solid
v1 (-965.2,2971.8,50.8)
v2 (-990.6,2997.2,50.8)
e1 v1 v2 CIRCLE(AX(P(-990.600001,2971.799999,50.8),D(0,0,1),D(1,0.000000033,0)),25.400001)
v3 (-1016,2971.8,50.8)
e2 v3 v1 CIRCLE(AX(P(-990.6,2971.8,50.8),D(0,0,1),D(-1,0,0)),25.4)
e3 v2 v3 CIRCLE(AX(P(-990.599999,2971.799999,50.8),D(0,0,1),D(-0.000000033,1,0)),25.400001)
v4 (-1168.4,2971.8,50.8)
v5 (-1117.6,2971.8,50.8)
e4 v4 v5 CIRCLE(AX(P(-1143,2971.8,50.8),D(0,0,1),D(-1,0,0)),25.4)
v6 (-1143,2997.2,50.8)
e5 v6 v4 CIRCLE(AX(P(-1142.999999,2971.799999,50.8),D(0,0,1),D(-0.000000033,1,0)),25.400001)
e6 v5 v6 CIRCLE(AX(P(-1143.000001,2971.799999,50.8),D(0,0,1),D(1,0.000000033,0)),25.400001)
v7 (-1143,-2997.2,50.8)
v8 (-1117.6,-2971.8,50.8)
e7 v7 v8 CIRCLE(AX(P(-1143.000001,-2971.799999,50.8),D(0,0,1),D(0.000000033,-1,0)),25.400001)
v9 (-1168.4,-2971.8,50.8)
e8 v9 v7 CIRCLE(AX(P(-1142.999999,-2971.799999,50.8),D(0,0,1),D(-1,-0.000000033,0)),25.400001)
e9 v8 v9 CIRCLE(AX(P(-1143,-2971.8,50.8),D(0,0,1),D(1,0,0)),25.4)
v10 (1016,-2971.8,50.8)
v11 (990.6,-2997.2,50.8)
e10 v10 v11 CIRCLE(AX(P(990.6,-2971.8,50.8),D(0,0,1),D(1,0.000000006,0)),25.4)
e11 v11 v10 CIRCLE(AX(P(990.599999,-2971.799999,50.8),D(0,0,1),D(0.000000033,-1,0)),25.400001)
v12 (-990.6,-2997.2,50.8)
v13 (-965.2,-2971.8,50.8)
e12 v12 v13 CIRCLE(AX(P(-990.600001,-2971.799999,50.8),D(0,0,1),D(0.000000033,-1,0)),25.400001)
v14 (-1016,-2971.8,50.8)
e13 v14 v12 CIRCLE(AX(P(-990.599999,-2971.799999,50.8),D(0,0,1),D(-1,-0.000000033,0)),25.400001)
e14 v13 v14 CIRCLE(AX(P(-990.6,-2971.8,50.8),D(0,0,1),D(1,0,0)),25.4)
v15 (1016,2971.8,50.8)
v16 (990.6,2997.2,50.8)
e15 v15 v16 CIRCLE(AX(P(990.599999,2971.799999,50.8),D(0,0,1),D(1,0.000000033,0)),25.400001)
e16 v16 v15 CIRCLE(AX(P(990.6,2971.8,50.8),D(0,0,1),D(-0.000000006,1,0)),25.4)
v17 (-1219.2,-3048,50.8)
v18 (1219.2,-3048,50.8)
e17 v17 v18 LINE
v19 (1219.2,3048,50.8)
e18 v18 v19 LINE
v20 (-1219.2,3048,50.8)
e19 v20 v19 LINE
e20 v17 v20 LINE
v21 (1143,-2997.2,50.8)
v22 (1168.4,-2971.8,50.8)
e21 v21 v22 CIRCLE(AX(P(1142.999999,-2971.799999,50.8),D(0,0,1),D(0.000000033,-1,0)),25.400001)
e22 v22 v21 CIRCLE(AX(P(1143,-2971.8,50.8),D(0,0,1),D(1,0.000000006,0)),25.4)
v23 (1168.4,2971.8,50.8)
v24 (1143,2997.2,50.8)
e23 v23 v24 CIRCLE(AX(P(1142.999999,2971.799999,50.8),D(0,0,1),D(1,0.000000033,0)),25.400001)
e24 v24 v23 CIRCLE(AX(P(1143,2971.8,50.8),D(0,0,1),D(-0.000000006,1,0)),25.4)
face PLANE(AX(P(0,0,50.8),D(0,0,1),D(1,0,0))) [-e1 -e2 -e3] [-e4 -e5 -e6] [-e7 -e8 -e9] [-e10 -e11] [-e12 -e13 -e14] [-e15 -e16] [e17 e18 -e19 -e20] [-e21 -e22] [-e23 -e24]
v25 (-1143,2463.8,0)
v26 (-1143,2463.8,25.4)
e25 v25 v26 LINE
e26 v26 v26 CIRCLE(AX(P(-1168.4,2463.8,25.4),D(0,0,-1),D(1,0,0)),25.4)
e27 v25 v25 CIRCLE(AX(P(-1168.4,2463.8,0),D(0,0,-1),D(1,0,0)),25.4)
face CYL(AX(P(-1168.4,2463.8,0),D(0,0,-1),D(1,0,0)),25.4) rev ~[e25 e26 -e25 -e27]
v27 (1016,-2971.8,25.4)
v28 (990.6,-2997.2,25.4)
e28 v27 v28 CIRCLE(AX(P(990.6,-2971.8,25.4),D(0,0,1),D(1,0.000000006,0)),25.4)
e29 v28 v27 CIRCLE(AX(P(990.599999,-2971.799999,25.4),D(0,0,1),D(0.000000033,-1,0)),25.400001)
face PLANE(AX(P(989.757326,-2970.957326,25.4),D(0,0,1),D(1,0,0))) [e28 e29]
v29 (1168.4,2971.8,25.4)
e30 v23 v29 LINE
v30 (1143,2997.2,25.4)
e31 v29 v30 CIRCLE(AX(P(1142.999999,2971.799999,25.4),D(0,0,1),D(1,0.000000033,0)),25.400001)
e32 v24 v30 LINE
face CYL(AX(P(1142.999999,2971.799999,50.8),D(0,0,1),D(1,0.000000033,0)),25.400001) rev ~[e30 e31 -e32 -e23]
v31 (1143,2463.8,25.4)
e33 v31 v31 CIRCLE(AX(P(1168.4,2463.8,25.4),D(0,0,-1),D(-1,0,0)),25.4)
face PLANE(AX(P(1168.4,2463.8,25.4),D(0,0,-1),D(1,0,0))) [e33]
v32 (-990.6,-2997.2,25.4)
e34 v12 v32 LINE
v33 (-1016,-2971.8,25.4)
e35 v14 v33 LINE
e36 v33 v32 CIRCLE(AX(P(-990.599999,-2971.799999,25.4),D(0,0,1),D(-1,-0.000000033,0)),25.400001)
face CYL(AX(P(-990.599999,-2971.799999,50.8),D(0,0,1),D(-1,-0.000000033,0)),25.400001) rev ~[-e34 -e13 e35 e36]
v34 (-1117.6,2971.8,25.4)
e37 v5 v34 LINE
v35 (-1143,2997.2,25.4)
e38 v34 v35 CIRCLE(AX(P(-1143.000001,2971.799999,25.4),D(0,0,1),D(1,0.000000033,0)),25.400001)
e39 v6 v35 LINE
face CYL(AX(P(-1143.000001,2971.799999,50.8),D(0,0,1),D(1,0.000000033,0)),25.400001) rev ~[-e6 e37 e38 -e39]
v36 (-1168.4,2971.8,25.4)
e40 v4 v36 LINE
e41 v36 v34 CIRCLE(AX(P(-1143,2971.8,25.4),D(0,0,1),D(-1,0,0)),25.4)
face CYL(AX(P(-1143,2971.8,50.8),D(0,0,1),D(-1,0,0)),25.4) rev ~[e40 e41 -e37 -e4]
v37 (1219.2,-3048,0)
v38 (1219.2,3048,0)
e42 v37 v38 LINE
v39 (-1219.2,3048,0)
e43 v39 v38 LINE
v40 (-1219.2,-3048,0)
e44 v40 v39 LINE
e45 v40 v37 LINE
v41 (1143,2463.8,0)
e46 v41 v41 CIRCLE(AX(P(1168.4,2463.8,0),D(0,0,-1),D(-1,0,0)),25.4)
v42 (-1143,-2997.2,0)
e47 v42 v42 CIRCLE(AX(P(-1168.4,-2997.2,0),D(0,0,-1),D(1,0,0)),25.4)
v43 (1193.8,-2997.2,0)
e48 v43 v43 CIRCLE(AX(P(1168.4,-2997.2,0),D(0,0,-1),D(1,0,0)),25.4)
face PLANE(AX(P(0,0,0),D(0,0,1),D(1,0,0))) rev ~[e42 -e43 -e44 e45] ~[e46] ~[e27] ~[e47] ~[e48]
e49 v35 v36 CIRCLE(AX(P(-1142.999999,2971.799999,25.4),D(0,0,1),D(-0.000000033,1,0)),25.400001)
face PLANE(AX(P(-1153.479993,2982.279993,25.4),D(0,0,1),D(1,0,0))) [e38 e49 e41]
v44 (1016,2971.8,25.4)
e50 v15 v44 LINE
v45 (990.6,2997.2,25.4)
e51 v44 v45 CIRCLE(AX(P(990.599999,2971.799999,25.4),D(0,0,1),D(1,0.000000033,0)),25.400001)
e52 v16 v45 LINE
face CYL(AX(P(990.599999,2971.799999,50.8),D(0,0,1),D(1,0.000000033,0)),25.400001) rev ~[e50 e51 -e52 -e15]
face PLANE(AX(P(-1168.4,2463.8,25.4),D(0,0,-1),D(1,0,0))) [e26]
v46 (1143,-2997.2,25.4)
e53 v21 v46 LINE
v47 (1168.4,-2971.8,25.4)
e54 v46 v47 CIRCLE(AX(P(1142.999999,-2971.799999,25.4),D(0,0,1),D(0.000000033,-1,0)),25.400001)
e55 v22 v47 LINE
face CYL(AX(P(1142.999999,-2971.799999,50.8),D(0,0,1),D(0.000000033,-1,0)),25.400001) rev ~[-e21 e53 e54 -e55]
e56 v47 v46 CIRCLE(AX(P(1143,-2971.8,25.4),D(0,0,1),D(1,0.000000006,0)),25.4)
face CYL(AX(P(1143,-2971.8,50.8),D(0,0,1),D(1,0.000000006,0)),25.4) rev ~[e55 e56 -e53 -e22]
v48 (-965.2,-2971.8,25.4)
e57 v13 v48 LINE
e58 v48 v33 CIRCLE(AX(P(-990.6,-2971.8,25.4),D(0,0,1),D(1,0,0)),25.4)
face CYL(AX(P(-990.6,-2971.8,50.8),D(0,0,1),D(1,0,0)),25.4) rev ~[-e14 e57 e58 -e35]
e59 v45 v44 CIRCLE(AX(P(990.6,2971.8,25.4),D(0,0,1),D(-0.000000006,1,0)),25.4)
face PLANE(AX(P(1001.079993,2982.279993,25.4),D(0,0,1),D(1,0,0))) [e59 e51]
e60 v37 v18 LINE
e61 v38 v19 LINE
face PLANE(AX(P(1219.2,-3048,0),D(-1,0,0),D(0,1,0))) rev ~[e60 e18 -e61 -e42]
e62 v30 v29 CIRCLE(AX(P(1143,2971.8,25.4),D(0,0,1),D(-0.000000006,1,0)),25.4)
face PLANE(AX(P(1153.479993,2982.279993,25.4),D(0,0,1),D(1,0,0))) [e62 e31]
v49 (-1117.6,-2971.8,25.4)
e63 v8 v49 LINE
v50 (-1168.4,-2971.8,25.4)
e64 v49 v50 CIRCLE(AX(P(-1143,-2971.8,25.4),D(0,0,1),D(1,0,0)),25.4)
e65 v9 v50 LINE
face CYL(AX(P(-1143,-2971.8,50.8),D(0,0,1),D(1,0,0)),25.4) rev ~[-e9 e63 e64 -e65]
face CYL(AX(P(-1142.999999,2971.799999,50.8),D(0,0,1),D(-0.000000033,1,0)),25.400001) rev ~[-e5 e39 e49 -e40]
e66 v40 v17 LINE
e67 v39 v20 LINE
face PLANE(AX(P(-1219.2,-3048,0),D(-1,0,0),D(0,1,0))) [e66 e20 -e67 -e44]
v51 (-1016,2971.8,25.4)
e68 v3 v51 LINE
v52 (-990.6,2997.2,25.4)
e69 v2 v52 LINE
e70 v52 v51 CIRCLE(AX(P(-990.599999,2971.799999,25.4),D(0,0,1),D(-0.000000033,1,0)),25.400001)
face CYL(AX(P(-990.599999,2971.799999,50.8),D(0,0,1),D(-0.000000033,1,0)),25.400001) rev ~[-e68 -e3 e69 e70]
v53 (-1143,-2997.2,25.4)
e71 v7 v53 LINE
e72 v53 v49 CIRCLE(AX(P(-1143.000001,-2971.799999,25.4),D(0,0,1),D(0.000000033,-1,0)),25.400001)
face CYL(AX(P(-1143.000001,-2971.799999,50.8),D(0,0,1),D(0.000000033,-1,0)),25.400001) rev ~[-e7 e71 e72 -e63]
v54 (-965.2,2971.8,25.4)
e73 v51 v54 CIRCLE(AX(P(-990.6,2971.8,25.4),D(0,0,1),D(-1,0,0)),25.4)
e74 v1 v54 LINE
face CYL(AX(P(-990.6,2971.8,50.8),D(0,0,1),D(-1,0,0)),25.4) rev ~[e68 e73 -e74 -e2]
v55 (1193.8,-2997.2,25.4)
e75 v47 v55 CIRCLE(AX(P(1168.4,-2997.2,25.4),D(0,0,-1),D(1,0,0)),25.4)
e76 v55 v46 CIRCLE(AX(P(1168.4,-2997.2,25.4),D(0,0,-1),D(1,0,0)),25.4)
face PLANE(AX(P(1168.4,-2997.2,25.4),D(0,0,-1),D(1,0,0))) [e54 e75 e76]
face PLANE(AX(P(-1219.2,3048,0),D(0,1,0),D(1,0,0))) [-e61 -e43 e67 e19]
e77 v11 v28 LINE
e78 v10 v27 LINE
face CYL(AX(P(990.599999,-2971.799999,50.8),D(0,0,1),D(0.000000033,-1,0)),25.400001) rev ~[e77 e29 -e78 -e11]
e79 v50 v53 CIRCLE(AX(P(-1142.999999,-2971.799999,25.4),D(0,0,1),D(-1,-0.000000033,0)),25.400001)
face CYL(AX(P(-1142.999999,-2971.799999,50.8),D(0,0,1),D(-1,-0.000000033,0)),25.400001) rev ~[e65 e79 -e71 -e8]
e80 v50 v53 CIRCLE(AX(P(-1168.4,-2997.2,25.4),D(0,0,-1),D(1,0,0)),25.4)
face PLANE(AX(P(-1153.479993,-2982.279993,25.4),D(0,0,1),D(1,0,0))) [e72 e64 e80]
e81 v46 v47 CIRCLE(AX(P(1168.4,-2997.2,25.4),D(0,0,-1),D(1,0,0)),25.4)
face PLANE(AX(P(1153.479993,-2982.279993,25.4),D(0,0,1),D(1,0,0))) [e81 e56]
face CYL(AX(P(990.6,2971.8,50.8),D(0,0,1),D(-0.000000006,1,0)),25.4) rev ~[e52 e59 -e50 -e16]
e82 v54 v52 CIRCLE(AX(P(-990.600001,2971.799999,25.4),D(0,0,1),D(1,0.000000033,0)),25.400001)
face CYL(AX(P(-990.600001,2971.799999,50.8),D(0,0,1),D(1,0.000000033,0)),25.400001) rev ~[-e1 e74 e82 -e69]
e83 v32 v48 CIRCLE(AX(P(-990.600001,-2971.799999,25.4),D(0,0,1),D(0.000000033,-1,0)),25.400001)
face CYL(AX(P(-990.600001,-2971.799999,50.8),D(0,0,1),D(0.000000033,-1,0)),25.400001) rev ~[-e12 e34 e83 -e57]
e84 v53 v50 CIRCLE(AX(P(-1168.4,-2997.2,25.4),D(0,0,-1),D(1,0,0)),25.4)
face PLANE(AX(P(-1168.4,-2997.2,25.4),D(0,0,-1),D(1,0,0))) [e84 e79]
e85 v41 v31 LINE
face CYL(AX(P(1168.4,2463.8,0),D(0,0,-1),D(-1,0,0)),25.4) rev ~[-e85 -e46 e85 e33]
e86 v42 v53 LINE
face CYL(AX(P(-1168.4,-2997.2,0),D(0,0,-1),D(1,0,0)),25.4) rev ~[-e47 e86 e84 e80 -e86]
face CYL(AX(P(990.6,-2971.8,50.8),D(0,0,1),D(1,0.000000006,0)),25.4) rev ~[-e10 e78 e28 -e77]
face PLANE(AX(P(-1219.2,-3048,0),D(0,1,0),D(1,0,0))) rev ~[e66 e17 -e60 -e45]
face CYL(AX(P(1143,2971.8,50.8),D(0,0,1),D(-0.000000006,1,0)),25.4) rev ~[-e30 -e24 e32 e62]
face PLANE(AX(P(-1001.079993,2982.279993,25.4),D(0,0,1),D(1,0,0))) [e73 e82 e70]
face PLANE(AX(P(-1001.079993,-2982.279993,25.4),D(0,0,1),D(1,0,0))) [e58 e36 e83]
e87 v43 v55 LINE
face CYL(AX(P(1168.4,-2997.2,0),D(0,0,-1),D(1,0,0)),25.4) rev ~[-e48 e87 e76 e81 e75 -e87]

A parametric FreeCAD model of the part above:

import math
import FreeCAD as App
import Part
import Sketcher

V = App.Vector
Q = App.Units.Quantity

doc = App.newDocument("Part")
body = doc.addObject("PartDesign::Body", "Body")

sketch1 = body.newObject("Sketcher::SketchObject", "Sketch")
sketch1.AttachmentSupport = (doc.getObject("XY_Plane"), [""])
sketch1.MapMode = "FlatFace"
sketch1.addGeometry([
    Part.LineSegment(V(-1219, 3048, 0), V(-1219, -3048, 0)),
    Part.LineSegment(V(-1219, -3048, 0), V(1219, -3048, 0)),
    Part.LineSegment(V(1219, -3048, 0), V(1219, 3048, 0)),
    Part.LineSegment(V(1219, 3048, 0), V(-1219, 3048, 0)),
], False)
sketch1.addConstraint([
    Sketcher.Constraint("Coincident", 0, 2, 1, 1),
    Sketcher.Constraint("Coincident", 1, 2, 2, 1),
    Sketcher.Constraint("Coincident", 2, 2, 3, 1),
    Sketcher.Constraint("Coincident", 3, 2, 0, 1),
    Sketcher.Constraint("Vertical", 0),
    Sketcher.Constraint("Horizontal", 1),
    Sketcher.Constraint("Vertical", 2),
    Sketcher.Constraint("Horizontal", 3),
    Sketcher.Constraint("Symmetric", 0, 2, 2, 2, -1, 1),
    Sketcher.Constraint("DistanceX", 1, 1, 1, 2, Q("96 in")),
    Sketcher.Constraint("DistanceY", 0, 2, 0, 1, Q("240 in")),
])
pad1 = body.newObject("PartDesign::Pad", "Pad")
pad1.Profile = sketch1
pad1.Length = Q("2 in")

sketch2 = body.newObject("Sketcher::SketchObject", "Sketch001")
sketch2.AttachmentSupport = (doc.getObject("XY_Plane"), [""])
sketch2.MapMode = "FlatFace"
sketch2.AttachmentOffset = App.Placement(V(0, 0, 2 * 25.4), App.Rotation())
sketch2.addGeometry([
    Part.ArcOfCircle(Part.Circle(V(1143, 2972, 0), V(0, 0, 1), 25), math.radians(0), math.radians(90)),
    Part.ArcOfCircle(Part.Circle(V(1143, 2972, 0), V(0, 0, 1), 25), math.radians(90), math.radians(360)),
    Part.ArcOfCircle(Part.Circle(V(1143, -2972, 0), V(0, 0, 1), 25), math.radians(-90), math.radians(0)),
    Part.ArcOfCircle(Part.Circle(V(1143, -2972, 0), V(0, 0, 1), 25), math.radians(0), math.radians(270)),
    Part.ArcOfCircle(Part.Circle(V(-1143, -2972, 0), V(0, 0, 1), 25), math.radians(-180), math.radians(-90)),
    Part.ArcOfCircle(Part.Circle(V(-1143, -2972, 0), V(0, 0, 1), 25), math.radians(-90), math.radians(0)),
    Part.ArcOfCircle(Part.Circle(V(-1143, -2972, 0), V(0, 0, 1), 25), math.radians(0), math.radians(180)),
    Part.ArcOfCircle(Part.Circle(V(-1143, 2972, 0), V(0, 0, 1), 25), math.radians(90), math.radians(180)),
    Part.ArcOfCircle(Part.Circle(V(-1143, 2972, 0), V(0, 0, 1), 25), math.radians(180), math.radians(360)),
    Part.ArcOfCircle(Part.Circle(V(-1143, 2972, 0), V(0, 0, 1), 25), math.radians(0), math.radians(90)),
], False)
sketch2.addConstraint([
    Sketcher.Constraint("Tangent", 0, 1, 1, 2),
    Sketcher.Constraint("Coincident", 1, 1, 0, 2),
    Sketcher.Constraint("Tangent", 2, 1, 3, 2),
    Sketcher.Constraint("Coincident", 3, 1, 2, 2),
    Sketcher.Constraint("Tangent", 4, 2, 5, 1),
    Sketcher.Constraint("Tangent", 5, 2, 6, 1),
    Sketcher.Constraint("Tangent", 6, 2, 4, 1),
    Sketcher.Constraint("Tangent", 7, 2, 8, 1),
    Sketcher.Constraint("Tangent", 8, 2, 9, 1),
    Sketcher.Constraint("Tangent", 9, 2, 7, 1),
    Sketcher.Constraint("Equal", 1, 2),
    Sketcher.Constraint("Equal", 3, 4),
    Sketcher.Constraint("Equal", 6, 7),
    Sketcher.Constraint("Symmetric", 0, 3, 4, 3, -1, 1),
    Sketcher.Constraint("Symmetric", 2, 3, 7, 3, -1, 1),
    Sketcher.Constraint("Symmetric", 2, 3, 4, 3, -2),
    Sketcher.Constraint("Horizontal", 9, 3, 0, 1),
    Sketcher.Constraint("Horizontal", 6, 3, 3, 1),
    Sketcher.Constraint("Horizontal", 3, 1, 5, 2),
    Sketcher.Constraint("Horizontal", 5, 2, 6, 2),
    Sketcher.Constraint("Horizontal", 0, 1, 7, 2),
    Sketcher.Constraint("Horizontal", 7, 2, 8, 2),
    Sketcher.Constraint("Vertical", 3, 3, 1, 1),
    Sketcher.Constraint("Vertical", 1, 1, 2, 1),
    Sketcher.Constraint("Vertical", 9, 3, 4, 2),
    Sketcher.Constraint("Vertical", 4, 2, 9, 2),
    Sketcher.Constraint("Radius", 0, Q("1 in")),
    Sketcher.Constraint("DistanceX", -1, 1, 0, 3, Q("45 in")),
    Sketcher.Constraint("DistanceY", -1, 1, 0, 3, Q("117 in")),
])
pocket1 = body.newObject("PartDesign::Pocket", "Pocket")
pocket1.Profile = sketch2
pocket1.Length = Q("1 in")

sketch3 = body.newObject("Sketcher::SketchObject", "Sketch002")
sketch3.AttachmentSupport = (doc.getObject("XY_Plane"), [""])
sketch3.MapMode = "FlatFace"
sketch3.AttachmentOffset = App.Placement(V(0, 0, 2 * 25.4), App.Rotation())
sketch3.addGeometry([
    Part.ArcOfCircle(Part.Circle(V(991, -2972, 0), V(0, 0, 1), 25), math.radians(0), math.radians(270)),
    Part.ArcOfCircle(Part.Circle(V(991, -2972, 0), V(0, 0, 1), 25), math.radians(-90), math.radians(0)),
    Part.ArcOfCircle(Part.Circle(V(-991, -2972, 0), V(0, 0, 1), 25), math.radians(-180), math.radians(-90)),
    Part.ArcOfCircle(Part.Circle(V(-991, -2972, 0), V(0, 0, 1), 25), math.radians(-90), math.radians(0)),
    Part.ArcOfCircle(Part.Circle(V(-991, -2972, 0), V(0, 0, 1), 25), math.radians(0), math.radians(180)),
    Part.ArcOfCircle(Part.Circle(V(991, 2972, 0), V(0, 0, 1), 25), math.radians(0), math.radians(90)),
    Part.ArcOfCircle(Part.Circle(V(991, 2972, 0), V(0, 0, 1), 25), math.radians(90), math.radians(360)),
    Part.ArcOfCircle(Part.Circle(V(-991, 2972, 0), V(0, 0, 1), 25), math.radians(90), math.radians(180)),
    Part.ArcOfCircle(Part.Circle(V(-991, 2972, 0), V(0, 0, 1), 25), math.radians(180), math.radians(360)),
    Part.ArcOfCircle(Part.Circle(V(-991, 2972, 0), V(0, 0, 1), 25), math.radians(0), math.radians(90)),
], False)
sketch3.addConstraint([
    Sketcher.Constraint("Tangent", 0, 1, 1, 2),
    Sketcher.Constraint("Coincident", 1, 1, 0, 2),
    Sketcher.Constraint("Tangent", 2, 2, 3, 1),
    Sketcher.Constraint("Tangent", 3, 2, 4, 1),
    Sketcher.Constraint("Tangent", 4, 2, 2, 1),
    Sketcher.Constraint("Tangent", 5, 1, 6, 2),
    Sketcher.Constraint("Coincident", 6, 1, 5, 2),
    Sketcher.Constraint("Tangent", 7, 2, 8, 1),
    Sketcher.Constraint("Tangent", 8, 2, 9, 1),
    Sketcher.Constraint("Tangent", 9, 2, 7, 1),
    Sketcher.Constraint("Equal", 1, 2),
    Sketcher.Constraint("Equal", 4, 5),
    Sketcher.Constraint("Equal", 6, 7),
    Sketcher.Constraint("Symmetric", 2, 3, 5, 3, -1, 1),
    Sketcher.Constraint("Symmetric", 0, 3, 7, 3, -1, 1),
    Sketcher.Constraint("Symmetric", 0, 3, 2, 3, -2),
    Sketcher.Constraint("Horizontal", 4, 3, 0, 1),
    Sketcher.Constraint("Horizontal", 0, 1, 3, 2),
    Sketcher.Constraint("Horizontal", 3, 2, 4, 2),
    Sketcher.Constraint("Horizontal", 9, 3, 5, 1),
    Sketcher.Constraint("Horizontal", 5, 1, 7, 2),
    Sketcher.Constraint("Horizontal", 7, 2, 8, 2),
    Sketcher.Constraint("Vertical", 6, 3, 1, 1),
    Sketcher.Constraint("Vertical", 9, 3, 2, 2),
    Sketcher.Constraint("Vertical", 1, 1, 6, 1),
    Sketcher.Constraint("Vertical", 2, 2, 9, 2),
    Sketcher.Constraint("Radius", 0, Q("1 in")),
    Sketcher.Constraint("DistanceX", -1, 1, 0, 3, Q("39 in")),
    Sketcher.Constraint("DistanceY", 0, 3, -1, 1, Q("117 in")),
])
pocket2 = body.newObject("PartDesign::Pocket", "Pocket001")
pocket2.Profile = sketch3
pocket2.Length = Q("1 in")

sketch4 = body.newObject("Sketcher::SketchObject", "Sketch003")
sketch4.AttachmentSupport = (doc.getObject("XY_Plane"), [""])
sketch4.MapMode = "FlatFace"
sketch4.addGeometry(Part.Circle(V(-1168, 2464, 0), V(0, 0, 1), 25), False)
sketch4.addConstraint([
    Sketcher.Constraint("Diameter", 0, Q("2 in")),
    Sketcher.Constraint("DistanceX", 0, 3, -1, 1, Q("46 in")),
    Sketcher.Constraint("DistanceY", -1, 1, 0, 3, Q("97 in")),
])
pocket3 = body.newObject("PartDesign::Pocket", "Pocket002")
pocket3.Profile = sketch4
pocket3.Length = Q("1 in")
pocket3.Reversed = True

sketch5 = body.newObject("Sketcher::SketchObject", "Sketch004")
sketch5.AttachmentSupport = (doc.getObject("XY_Plane"), [""])
sketch5.MapMode = "FlatFace"
sketch5.addGeometry([
    Part.Circle(V(-1168, 2464, 0), V(0, 0, 1), 25),
    Part.Circle(V(1168, 2464, 0), V(0, 0, 1), 25),
    Part.Circle(V(-1168, -2997, 0), V(0, 0, 1), 25),
    Part.Circle(V(1168, -2997, 0), V(0, 0, 1), 25),
], False)
sketch5.addConstraint([
    Sketcher.Constraint("Equal", 0, 1),
    Sketcher.Constraint("Equal", 1, 2),
    Sketcher.Constraint("Equal", 2, 3),
    Sketcher.Constraint("Symmetric", 0, 3, 1, 3, -2),
    Sketcher.Constraint("Symmetric", 2, 3, 3, 3, -2),
    Sketcher.Constraint("Vertical", 0, 3, 2, 3),
    Sketcher.Constraint("Diameter", 0, Q("2 in")),
    Sketcher.Constraint("DistanceX", 0, 3, -1, 1, Q("46 in")),
    Sketcher.Constraint("DistanceY", -1, 1, 0, 3, Q("97 in")),
    Sketcher.Constraint("DistanceY", 2, 3, -1, 1, Q("118 in")),
])
pocket4 = body.newObject("PartDesign::Pocket", "Pocket003")
pocket4.Profile = sketch5
pocket4.Length = Q("1 in")
pocket4.Reversed = True

sketch6 = body.newObject("Sketcher::SketchObject", "Sketch005")
sketch6.AttachmentSupport = (doc.getObject("XY_Plane"), [""])
sketch6.MapMode = "FlatFace"
sketch6.addGeometry([
    Part.Circle(V(-1168, 2464, 0), V(0, 0, 1), 25),
    Part.Circle(V(1168, 2464, 0), V(0, 0, 1), 25),
    Part.Circle(V(-1168, -2997, 0), V(0, 0, 1), 25),
    Part.Circle(V(1168, -2997, 0), V(0, 0, 1), 25),
], False)
sketch6.addConstraint([
    Sketcher.Constraint("Equal", 0, 1),
    Sketcher.Constraint("Equal", 1, 2),
    Sketcher.Constraint("Equal", 2, 3),
    Sketcher.Constraint("Symmetric", 0, 3, 1, 3, -2),
    Sketcher.Constraint("Symmetric", 2, 3, 3, 3, -2),
    Sketcher.Constraint("Vertical", 0, 3, 2, 3),
    Sketcher.Constraint("Diameter", 0, Q("2 in")),
    Sketcher.Constraint("DistanceX", 0, 3, -1, 1, Q("46 in")),
    Sketcher.Constraint("DistanceY", -1, 1, 0, 3, Q("97 in")),
    Sketcher.Constraint("DistanceY", 2, 3, -1, 1, Q("118 in")),
])
pocket5 = body.newObject("PartDesign::Pocket", "Pocket004")
pocket5.Profile = sketch6
pocket5.Length = Q("1 in")
pocket5.Reversed = True

doc.recompute()
